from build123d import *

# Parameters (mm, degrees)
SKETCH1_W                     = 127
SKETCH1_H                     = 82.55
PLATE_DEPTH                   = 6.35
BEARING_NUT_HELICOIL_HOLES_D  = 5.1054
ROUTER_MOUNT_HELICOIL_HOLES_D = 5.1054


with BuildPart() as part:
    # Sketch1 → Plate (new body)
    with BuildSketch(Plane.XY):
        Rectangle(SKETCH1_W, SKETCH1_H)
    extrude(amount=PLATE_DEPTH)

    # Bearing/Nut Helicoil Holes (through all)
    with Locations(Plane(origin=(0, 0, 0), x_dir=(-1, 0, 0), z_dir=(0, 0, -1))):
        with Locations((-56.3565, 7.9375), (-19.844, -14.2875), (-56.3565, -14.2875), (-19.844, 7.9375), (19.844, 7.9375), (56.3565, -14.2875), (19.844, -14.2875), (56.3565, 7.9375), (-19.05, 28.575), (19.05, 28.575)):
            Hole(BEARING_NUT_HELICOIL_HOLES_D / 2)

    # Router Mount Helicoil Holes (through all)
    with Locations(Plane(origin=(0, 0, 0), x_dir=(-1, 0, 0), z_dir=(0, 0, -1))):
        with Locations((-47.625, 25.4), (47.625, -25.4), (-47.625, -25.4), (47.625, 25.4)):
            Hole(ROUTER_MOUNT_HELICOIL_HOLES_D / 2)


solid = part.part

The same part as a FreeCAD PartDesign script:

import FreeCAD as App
import Part
import Sketcher
Q = App.Units.Quantity

doc = App.newDocument("Part")
body = doc.addObject("PartDesign::Body", "Body")

# Sketch on XY plane
sketch1 = body.newObject("Sketcher::SketchObject", "Sketch")
sketch1.AttachmentSupport = (doc.getObject("XY_Plane"), [""])
sketch1.MapMode = "FlatFace"
sketch1.addGeometry(Part.LineSegment(App.Vector(-63.5, 41.275, 0), App.Vector(-63.5, -41.275, 0)), False)
sketch1.addGeometry(Part.LineSegment(App.Vector(-63.5, -41.275, 0), App.Vector(63.5, -41.275, 0)), False)
sketch1.addGeometry(Part.LineSegment(App.Vector(63.5, -41.275, 0), App.Vector(63.5, 41.275, 0)), False)
sketch1.addGeometry(Part.LineSegment(App.Vector(63.5, 41.275, 0), App.Vector(-63.5, 41.275, 0)), False)
sketch1.addConstraint(Sketcher.Constraint("Coincident", 0, 2, 1, 1))
sketch1.addConstraint(Sketcher.Constraint("Coincident", 1, 2, 2, 1))
sketch1.addConstraint(Sketcher.Constraint("Coincident", 2, 2, 3, 1))
sketch1.addConstraint(Sketcher.Constraint("Coincident", 3, 2, 0, 1))
sketch1.addConstraint(Sketcher.Constraint("Vertical", 0))
sketch1.addConstraint(Sketcher.Constraint("Horizontal", 1))
sketch1.addConstraint(Sketcher.Constraint("Vertical", 2))
sketch1.addConstraint(Sketcher.Constraint("Horizontal", 3))
sketch1.addConstraint(Sketcher.Constraint("Symmetric", 0, 2, 2, 2, -1, 1))
sketch1.addConstraint(Sketcher.Constraint("DistanceX", 1, 1, 1, 2, Q("5 in")))
sketch1.addConstraint(Sketcher.Constraint("DistanceY", 0, 2, 0, 1, Q("3.25 in")))
pad1 = body.newObject("PartDesign::Pad", "Pad")
pad1.Profile = sketch1
pad1.Length = Q("0.25 in")

# Sketch on XY plane
sketch2 = body.newObject("Sketcher::SketchObject", "Sketch001")
sketch2.AttachmentSupport = (doc.getObject("XY_Plane"), [""])
sketch2.MapMode = "FlatFace"
sketch2.addGeometry(Part.Circle(App.Vector(56.3565, 7.9375, 0), App.Vector(0, 0, 1), 2.5527), False)
sketch2.addGeometry(Part.Circle(App.Vector(19.844, -14.2875, 0), App.Vector(0, 0, 1), 2.5527), False)
sketch2.addGeometry(Part.Circle(App.Vector(56.3565, -14.2875, 0), App.Vector(0, 0, 1), 2.5527), False)
sketch2.addGeometry(Part.Circle(App.Vector(19.844, 7.9375, 0), App.Vector(0, 0, 1), 2.5527), False)
sketch2.addGeometry(Part.Circle(App.Vector(-19.844, 7.9375, 0), App.Vector(0, 0, 1), 2.5527), False)
sketch2.addGeometry(Part.Circle(App.Vector(-56.3565, -14.2875, 0), App.Vector(0, 0, 1), 2.5527), False)
sketch2.addGeometry(Part.Circle(App.Vector(-19.844, -14.2875, 0), App.Vector(0, 0, 1), 2.5527), False)
sketch2.addGeometry(Part.Circle(App.Vector(-56.3565, 7.9375, 0), App.Vector(0, 0, 1), 2.5527), False)
sketch2.addGeometry(Part.Circle(App.Vector(19.05, 28.575, 0), App.Vector(0, 0, 1), 2.5527), False)
sketch2.addGeometry(Part.Circle(App.Vector(-19.05, 28.575, 0), App.Vector(0, 0, 1), 2.5527), False)
sketch2.addConstraint(Sketcher.Constraint("Equal", 0, 1))
sketch2.addConstraint(Sketcher.Constraint("Equal", 1, 2))
sketch2.addConstraint(Sketcher.Constraint("Equal", 2, 3))
sketch2.addConstraint(Sketcher.Constraint("Equal", 3, 4))
sketch2.addConstraint(Sketcher.Constraint("Equal", 4, 5))
sketch2.addConstraint(Sketcher.Constraint("Equal", 5, 6))
sketch2.addConstraint(Sketcher.Constraint("Equal", 6, 7))
sketch2.addConstraint(Sketcher.Constraint("Equal", 7, 8))
sketch2.addConstraint(Sketcher.Constraint("Equal", 8, 9))
sketch2.addConstraint(Sketcher.Constraint("Symmetric", 3, 3, 4, 3, -2))
sketch2.addConstraint(Sketcher.Constraint("Symmetric", 2, 3, 5, 3, -2))
sketch2.addConstraint(Sketcher.Constraint("Symmetric", 1, 3, 6, 3, -2))
sketch2.addConstraint(Sketcher.Constraint("Symmetric", 0, 3, 7, 3, -2))
sketch2.addConstraint(Sketcher.Constraint("Symmetric", 8, 3, 9, 3, -2))
sketch2.addConstraint(Sketcher.Constraint("Horizontal", 1, 3, 2, 3))
sketch2.addConstraint(Sketcher.Constraint("Horizontal", 0, 3, 3, 3))
sketch2.addConstraint(Sketcher.Constraint("Vertical", 0, 3, 2, 3))
sketch2.addConstraint(Sketcher.Constraint("Vertical", 1, 3, 3, 3))
sketch2.addConstraint(Sketcher.Constraint("Diameter", 0, Q("0.201 in")))
sketch2.addConstraint(Sketcher.Constraint("DistanceX", 9, 3, 8, 3, Q("1.5 in")))
sketch2.addConstraint(Sketcher.Constraint("DistanceY", -1, 1, 0, 3, Q("0.3125 in")))
sketch2.addConstraint(Sketcher.Constraint("DistanceY", 1, 3, -1, 1, Q("0.5625 in")))
sketch2.addConstraint(Sketcher.Constraint("DistanceY", -1, 1, 8, 3, Q("1.125 in")))
sketch2.addConstraint(Sketcher.Constraint("DistanceX", 1, 3, 0, 3, Q("1.4375 in")))
sketch2.addConstraint(Sketcher.Constraint("DistanceX", -1, 1, 0, 3, Q("56.3565 mm")))
doc.recompute()
hole = body.newObject("PartDesign::Hole", "Hole")
hole.Profile = sketch2
hole.ThreadType = "None"
hole.Diameter = Q("0.201 in")
hole.DepthType = "ThroughAll"
hole.Reversed = True

# Sketch on XY plane
sketch3 = body.newObject("Sketcher::SketchObject", "Sketch002")
sketch3.AttachmentSupport = (doc.getObject("XY_Plane"), [""])
sketch3.MapMode = "FlatFace"
sketch3.addGeometry(Part.Circle(App.Vector(47.625, 25.4, 0), App.Vector(0, 0, 1), 2.5527), False)
sketch3.addGeometry(Part.Circle(App.Vector(-47.625, -25.4, 0), App.Vector(0, 0, 1), 2.5527), False)
sketch3.addGeometry(Part.Circle(App.Vector(47.625, -25.4, 0), App.Vector(0, 0, 1), 2.5527), False)
sketch3.addGeometry(Part.Circle(App.Vector(-47.625, 25.4, 0), App.Vector(0, 0, 1), 2.5527), False)
sketch3.addConstraint(Sketcher.Constraint("Equal", 0, 1))
sketch3.addConstraint(Sketcher.Constraint("Equal", 1, 2))
sketch3.addConstraint(Sketcher.Constraint("Equal", 2, 3))
sketch3.addConstraint(Sketcher.Constraint("Symmetric", 0, 3, 1, 3, -1, 1))
sketch3.addConstraint(Sketcher.Constraint("Symmetric", 2, 3, 3, 3, -1, 1))
sketch3.addConstraint(Sketcher.Constraint("Symmetric", 1, 3, 2, 3, -2))
sketch3.addConstraint(Sketcher.Constraint("Diameter", 0, Q("0.201 in")))
sketch3.addConstraint(Sketcher.Constraint("DistanceY", -1, 1, 0, 3, Q("1 in")))
sketch3.addConstraint(Sketcher.Constraint("DistanceX", 1, 3, 0, 3, Q("3.75 in")))
doc.recompute()
hole2 = body.newObject("PartDesign::Hole", "Hole001")
hole2.Profile = sketch3
hole2.ThreadType = "None"
hole2.Diameter = Q("0.201 in")
hole2.DepthType = "ThroughAll"
hole2.Reversed = True

doc.recompute()
